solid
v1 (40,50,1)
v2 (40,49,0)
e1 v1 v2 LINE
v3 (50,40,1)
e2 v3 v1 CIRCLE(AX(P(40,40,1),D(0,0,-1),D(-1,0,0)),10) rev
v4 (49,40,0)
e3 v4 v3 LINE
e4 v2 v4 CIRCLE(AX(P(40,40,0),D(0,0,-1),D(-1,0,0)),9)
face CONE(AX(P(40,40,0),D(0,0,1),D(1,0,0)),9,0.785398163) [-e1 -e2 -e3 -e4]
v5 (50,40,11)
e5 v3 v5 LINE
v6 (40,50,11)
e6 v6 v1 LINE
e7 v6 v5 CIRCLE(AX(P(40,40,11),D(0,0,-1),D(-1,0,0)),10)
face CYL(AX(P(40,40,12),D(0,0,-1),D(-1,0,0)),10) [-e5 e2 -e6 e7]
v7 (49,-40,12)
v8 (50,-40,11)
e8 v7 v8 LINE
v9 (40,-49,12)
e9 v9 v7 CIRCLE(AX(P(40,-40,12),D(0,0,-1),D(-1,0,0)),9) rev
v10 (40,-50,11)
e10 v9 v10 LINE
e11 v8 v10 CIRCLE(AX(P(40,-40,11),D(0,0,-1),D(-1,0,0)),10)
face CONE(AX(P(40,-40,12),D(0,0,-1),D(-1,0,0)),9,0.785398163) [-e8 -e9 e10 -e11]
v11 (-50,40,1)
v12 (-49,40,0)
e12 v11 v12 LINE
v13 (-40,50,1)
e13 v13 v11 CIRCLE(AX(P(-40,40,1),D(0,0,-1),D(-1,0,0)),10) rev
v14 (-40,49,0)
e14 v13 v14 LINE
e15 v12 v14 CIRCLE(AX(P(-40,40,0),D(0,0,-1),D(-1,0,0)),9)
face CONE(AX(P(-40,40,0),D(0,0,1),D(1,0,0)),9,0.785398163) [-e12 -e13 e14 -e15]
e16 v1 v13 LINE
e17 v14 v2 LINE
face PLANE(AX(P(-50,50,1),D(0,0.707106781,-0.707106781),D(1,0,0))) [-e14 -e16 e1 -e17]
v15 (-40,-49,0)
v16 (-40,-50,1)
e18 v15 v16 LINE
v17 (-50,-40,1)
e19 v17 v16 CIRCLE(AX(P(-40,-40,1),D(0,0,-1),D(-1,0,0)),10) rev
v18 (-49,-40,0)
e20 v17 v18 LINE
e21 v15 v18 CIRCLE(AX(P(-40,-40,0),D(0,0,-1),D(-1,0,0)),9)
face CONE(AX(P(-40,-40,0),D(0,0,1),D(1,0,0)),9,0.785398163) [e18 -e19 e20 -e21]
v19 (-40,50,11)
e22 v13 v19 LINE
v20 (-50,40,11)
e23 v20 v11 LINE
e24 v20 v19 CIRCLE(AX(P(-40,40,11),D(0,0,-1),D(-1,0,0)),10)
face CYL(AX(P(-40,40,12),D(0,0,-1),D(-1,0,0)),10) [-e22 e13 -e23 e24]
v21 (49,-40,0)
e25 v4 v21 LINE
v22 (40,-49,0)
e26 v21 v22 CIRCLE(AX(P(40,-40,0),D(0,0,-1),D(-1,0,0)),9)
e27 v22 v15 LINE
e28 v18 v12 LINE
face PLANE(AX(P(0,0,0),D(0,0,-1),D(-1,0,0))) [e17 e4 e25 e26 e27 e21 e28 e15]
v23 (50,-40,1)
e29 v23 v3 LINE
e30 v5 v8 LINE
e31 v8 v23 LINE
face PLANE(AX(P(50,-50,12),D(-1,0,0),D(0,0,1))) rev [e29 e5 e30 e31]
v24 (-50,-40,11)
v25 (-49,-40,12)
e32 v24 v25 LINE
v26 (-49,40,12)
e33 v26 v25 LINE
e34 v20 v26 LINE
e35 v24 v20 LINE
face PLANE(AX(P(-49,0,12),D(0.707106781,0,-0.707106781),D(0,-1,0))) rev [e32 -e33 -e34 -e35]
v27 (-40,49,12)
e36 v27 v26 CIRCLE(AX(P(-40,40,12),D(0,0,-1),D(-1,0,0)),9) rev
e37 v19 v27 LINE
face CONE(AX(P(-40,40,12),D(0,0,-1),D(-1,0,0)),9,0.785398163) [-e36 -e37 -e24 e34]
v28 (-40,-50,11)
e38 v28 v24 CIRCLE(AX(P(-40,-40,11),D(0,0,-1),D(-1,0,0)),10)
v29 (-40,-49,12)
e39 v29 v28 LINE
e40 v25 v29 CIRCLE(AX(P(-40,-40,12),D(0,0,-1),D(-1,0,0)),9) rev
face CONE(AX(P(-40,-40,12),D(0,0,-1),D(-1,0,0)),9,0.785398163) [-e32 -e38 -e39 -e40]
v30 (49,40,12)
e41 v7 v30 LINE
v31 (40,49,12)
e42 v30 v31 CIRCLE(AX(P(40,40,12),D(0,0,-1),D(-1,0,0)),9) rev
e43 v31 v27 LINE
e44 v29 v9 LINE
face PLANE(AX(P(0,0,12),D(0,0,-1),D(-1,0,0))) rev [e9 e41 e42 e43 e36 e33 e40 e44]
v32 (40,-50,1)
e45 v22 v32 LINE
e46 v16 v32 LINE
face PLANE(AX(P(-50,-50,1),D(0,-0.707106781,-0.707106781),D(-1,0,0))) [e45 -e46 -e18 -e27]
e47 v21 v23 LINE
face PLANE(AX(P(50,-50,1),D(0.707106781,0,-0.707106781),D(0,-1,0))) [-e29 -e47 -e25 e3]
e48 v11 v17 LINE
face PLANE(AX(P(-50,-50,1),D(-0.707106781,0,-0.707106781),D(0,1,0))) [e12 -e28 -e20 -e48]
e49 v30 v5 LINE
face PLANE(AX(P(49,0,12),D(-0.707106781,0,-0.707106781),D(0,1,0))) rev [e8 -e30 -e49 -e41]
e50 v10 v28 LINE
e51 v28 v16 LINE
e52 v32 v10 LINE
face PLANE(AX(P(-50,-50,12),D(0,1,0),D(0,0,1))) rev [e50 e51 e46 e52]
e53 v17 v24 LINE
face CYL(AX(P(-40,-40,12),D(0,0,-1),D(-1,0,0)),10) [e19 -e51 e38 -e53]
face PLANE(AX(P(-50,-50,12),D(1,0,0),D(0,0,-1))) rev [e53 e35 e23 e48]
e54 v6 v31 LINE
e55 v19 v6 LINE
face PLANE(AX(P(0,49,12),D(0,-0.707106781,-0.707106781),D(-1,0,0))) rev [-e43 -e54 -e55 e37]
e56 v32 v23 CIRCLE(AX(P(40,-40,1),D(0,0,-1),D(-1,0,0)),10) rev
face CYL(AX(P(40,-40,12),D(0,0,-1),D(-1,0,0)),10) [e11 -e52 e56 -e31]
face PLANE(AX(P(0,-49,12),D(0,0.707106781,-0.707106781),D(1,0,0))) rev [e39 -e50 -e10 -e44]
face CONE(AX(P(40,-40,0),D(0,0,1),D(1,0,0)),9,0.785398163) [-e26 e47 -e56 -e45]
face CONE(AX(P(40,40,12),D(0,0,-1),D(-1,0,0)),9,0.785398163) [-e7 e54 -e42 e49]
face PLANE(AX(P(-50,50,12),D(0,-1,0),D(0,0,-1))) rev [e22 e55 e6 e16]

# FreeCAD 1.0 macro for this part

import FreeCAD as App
import Part
import Sketcher

V = App.Vector
Q = App.Units.Quantity


def edges_at(feature, points):
    """Names of the edges that pass closest to the given points."""
    edges = feature.Shape.Edges
    near = lambda p: min(range(len(edges)), key=lambda i: edges[i].distToShape(Part.Vertex(*p))[0])
    return sorted({f"Edge{near(p) + 1}" for p in points})


def add_polygon(sketch, points):
    """Adds a closed chain of lines whose ends are joined by coincident constraints."""
    first, n = sketch.GeometryCount, len(points)
    for a, b in zip(points, points[1:] + points[:1]):
        sketch.addGeometry(Part.LineSegment(App.Vector(*a, 0), App.Vector(*b, 0)), False)
    for i in range(n):
        sketch.addConstraint(Sketcher.Constraint("Coincident", first + i, 2, first + (i + 1) % n, 1))

doc = App.newDocument("Part")
body = doc.addObject("PartDesign::Body", "Body")

# Sketch on XY plane
sketch1 = body.newObject("Sketcher::SketchObject", "Sketch")
sketch1.AttachmentSupport = (doc.getObject("XY_Plane"), [""])
sketch1.MapMode = "FlatFace"
add_polygon(sketch1, [(-50, 50), (-50, -50), (50, -50), (50, 50)])  # lines 0-3
sketch1.addConstraint(Sketcher.Constraint("Vertical", 0))
sketch1.addConstraint(Sketcher.Constraint("Horizontal", 1))
sketch1.addConstraint(Sketcher.Constraint("Vertical", 2))
sketch1.addConstraint(Sketcher.Constraint("Horizontal", 3))
sketch1.addConstraint(Sketcher.Constraint("Symmetric", 0, 2, 2, 2, -1, 1))
sketch1.addConstraint(Sketcher.Constraint("Equal", 3, 0))
sketch1.addConstraint(Sketcher.Constraint("DistanceX", 1, 1, 1, 2, Q("100 mm")))
pad1 = body.newObject("PartDesign::Pad", "Pad")
pad1.Profile = sketch1
pad1.Length = 12
doc.recompute()

fillet = body.newObject("PartDesign::Fillet", "Fillet")
fillet.Base = (pad1, edges_at(pad1, [
    (50, -50, 6),
    (-50, -50, 6),
    (-50, 50, 6),
    (50, 50, 6),
]))
fillet.Radius = 10
doc.recompute()

chamfer = body.newObject("PartDesign::Chamfer", "Chamfer")
chamfer.Base = (fillet, edges_at(fillet, [
    (-50, 0, 0),
    (50, 0, 0),
    (0, -50, 0),
    (0, 50, 0),
    (47.071, 47.071, 0),
    (47.071, -47.071, 0),
    (-47.071, -47.071, 0),
    (-47.071, 47.071, 0),
]))
chamfer.Size = 1
doc.recompute()

chamfer2 = body.newObject("PartDesign::Chamfer", "Chamfer001")
chamfer2.Base = (chamfer, edges_at(chamfer, [
    (-50, 0, 12),
    (0, 50, 12),
    (50, 0, 12),
    (0, -50, 12),
    (47.071, 47.071, 12),
    (47.071, -47.071, 12),
    (-47.071, -47.071, 12),
    (-47.071, 47.071, 12),
]))
chamfer2.Size = 1

doc.recompute()
